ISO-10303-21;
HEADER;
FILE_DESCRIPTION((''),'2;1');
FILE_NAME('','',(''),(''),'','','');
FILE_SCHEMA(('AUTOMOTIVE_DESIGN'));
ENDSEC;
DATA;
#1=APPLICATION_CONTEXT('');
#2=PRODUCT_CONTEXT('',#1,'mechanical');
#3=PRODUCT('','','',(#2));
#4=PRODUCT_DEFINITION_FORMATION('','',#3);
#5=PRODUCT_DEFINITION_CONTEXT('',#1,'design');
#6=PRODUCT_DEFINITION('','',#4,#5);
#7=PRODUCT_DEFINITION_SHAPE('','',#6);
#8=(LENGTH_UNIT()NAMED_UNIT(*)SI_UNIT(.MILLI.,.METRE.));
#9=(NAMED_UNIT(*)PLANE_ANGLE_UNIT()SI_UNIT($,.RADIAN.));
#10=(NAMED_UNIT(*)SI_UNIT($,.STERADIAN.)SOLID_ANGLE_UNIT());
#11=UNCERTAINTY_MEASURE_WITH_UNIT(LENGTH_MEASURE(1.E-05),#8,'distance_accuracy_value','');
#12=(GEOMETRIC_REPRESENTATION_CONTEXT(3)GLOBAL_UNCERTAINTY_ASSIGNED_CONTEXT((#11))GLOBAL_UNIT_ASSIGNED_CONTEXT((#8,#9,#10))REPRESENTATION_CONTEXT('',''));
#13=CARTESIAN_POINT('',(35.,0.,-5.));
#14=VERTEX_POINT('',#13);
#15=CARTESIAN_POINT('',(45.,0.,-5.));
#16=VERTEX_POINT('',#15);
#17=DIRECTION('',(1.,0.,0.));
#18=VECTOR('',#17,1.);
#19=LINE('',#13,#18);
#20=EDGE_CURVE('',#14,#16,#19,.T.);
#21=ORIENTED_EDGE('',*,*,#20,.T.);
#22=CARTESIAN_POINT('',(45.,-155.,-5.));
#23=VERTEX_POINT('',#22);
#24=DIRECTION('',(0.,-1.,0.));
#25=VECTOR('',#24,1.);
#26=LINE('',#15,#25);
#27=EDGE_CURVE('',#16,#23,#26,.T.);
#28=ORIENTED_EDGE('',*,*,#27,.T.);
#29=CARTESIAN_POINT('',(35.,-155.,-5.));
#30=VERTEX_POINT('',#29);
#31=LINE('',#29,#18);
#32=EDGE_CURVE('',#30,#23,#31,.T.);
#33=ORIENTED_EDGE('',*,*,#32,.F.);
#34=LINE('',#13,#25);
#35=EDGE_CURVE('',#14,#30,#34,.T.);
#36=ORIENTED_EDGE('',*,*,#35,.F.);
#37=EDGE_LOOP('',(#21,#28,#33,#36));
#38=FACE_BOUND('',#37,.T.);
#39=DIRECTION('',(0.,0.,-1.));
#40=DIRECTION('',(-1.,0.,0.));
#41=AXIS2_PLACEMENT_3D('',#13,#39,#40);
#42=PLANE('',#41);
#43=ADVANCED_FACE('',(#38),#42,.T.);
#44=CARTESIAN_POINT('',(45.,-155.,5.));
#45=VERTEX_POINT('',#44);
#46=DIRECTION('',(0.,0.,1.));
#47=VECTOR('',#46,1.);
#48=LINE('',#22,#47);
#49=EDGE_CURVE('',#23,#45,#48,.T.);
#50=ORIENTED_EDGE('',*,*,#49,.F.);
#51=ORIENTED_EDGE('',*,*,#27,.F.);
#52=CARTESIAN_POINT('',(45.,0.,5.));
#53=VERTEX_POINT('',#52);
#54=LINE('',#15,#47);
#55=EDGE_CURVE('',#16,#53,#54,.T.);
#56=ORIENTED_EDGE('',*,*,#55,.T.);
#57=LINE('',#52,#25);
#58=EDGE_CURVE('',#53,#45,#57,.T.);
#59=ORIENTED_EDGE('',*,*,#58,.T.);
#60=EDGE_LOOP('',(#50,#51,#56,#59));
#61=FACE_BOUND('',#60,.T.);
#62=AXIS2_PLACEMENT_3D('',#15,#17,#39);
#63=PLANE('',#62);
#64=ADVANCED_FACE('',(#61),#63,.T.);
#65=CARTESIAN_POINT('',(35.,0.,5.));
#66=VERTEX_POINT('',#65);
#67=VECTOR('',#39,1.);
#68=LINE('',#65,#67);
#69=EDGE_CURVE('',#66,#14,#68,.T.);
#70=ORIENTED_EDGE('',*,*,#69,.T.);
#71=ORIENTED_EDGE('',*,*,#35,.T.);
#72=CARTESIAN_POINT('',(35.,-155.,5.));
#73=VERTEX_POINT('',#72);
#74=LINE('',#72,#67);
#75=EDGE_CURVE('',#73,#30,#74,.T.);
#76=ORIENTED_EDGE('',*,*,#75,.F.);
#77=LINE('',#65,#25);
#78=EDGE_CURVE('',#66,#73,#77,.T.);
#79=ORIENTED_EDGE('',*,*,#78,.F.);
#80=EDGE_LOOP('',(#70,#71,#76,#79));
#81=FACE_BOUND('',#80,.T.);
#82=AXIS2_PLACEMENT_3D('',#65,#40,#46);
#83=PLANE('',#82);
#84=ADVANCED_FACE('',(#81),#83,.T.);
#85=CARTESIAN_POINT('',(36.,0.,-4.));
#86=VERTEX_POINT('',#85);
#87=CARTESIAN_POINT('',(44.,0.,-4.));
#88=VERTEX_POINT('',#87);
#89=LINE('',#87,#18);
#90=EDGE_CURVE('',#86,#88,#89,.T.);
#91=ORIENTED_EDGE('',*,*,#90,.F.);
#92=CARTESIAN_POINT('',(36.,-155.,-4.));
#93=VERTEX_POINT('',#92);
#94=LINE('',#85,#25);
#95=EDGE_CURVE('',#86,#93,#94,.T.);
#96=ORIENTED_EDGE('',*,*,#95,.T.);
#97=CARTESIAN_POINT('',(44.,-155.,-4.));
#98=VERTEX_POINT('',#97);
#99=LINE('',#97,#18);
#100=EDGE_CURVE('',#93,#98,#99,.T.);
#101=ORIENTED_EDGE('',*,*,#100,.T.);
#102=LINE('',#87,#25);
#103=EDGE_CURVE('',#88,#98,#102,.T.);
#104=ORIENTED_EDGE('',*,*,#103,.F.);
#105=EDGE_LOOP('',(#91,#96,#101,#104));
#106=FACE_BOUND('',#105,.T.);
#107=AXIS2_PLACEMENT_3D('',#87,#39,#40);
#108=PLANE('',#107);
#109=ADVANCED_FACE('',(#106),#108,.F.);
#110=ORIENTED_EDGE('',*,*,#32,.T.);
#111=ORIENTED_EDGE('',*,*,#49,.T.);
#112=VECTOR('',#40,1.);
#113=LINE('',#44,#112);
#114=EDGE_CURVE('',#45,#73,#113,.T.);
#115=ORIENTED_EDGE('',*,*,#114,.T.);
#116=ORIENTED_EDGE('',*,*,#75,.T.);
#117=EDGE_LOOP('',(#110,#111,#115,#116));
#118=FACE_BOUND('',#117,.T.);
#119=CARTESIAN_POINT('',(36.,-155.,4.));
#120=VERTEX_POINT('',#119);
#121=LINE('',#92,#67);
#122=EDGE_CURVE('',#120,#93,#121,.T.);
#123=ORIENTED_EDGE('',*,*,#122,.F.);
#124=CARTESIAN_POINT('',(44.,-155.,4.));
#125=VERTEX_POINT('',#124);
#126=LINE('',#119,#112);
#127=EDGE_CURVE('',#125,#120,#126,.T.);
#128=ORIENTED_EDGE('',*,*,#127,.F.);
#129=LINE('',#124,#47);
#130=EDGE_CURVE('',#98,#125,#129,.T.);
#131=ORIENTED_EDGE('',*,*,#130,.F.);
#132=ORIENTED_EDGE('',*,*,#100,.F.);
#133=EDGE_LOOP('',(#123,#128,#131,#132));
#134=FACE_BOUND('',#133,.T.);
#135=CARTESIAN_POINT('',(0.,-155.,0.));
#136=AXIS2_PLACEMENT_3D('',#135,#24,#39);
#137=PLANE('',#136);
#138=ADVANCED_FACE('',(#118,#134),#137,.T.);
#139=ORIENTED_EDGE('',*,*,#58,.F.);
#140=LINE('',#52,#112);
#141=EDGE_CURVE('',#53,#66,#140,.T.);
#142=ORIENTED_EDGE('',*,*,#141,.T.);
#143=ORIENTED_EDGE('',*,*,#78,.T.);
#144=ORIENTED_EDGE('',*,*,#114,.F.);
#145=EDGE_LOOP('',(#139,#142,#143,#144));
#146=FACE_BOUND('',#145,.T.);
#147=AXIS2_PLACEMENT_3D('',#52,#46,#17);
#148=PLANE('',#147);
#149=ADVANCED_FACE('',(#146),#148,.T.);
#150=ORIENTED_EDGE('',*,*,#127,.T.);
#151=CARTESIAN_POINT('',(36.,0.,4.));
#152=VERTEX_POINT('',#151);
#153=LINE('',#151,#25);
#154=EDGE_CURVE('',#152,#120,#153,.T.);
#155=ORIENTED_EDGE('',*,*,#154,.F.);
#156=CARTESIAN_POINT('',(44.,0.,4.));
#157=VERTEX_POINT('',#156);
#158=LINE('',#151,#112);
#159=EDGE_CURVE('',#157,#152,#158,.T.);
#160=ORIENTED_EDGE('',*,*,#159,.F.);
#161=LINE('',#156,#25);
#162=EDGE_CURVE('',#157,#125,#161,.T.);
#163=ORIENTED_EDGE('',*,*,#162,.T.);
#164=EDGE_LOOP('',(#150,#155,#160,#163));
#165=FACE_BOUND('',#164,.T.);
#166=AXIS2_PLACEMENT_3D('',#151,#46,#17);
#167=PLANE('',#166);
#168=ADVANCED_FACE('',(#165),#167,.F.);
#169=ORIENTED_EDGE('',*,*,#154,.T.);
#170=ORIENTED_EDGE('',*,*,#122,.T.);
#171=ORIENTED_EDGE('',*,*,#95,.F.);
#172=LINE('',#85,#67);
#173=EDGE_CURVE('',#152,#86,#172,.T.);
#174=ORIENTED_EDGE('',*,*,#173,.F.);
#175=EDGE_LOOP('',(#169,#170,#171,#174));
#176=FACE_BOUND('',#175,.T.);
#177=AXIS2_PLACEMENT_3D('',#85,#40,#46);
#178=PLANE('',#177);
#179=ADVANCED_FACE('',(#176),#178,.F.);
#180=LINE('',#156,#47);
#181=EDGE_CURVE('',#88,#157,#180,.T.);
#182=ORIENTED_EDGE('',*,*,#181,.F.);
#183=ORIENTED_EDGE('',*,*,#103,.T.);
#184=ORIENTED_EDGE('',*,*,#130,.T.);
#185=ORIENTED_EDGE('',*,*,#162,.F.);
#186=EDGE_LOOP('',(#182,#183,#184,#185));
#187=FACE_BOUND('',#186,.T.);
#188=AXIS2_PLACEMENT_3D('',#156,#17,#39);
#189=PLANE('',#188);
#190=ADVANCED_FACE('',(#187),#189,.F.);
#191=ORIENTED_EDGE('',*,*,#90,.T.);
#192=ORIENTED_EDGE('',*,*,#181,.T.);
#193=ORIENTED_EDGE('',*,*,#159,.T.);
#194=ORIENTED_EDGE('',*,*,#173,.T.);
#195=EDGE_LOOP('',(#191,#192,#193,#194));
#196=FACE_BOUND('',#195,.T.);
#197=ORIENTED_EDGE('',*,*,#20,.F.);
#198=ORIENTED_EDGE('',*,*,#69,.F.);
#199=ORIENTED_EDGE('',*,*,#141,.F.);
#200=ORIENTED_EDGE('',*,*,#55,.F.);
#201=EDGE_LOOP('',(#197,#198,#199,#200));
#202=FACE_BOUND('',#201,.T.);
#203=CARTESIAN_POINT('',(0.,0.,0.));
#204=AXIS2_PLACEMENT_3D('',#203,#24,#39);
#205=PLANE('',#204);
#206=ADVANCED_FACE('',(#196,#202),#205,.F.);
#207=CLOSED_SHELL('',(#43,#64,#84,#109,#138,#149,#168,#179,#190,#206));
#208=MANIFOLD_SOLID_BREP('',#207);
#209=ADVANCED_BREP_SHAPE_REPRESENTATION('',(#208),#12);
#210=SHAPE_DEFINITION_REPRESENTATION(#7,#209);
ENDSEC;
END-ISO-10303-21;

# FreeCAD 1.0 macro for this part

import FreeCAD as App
import Part
import Sketcher

V = App.Vector


def add_polygon(sketch, points):
    """Adds a closed chain of lines whose ends are joined by coincident constraints."""
    first, n = sketch.GeometryCount, len(points)
    for a, b in zip(points, points[1:] + points[:1]):
        sketch.addGeometry(Part.LineSegment(App.Vector(*a, 0), App.Vector(*b, 0)), False)
    for i in range(n):
        sketch.addConstraint(Sketcher.Constraint("Coincident", first + i, 2, first + (i + 1) % n, 1))

doc = App.newDocument("Part")
params = doc.addObject("Spreadsheet::Sheet", "Params")
for row, (alias, value) in enumerate([
    ("sketch1_width", "10 mm"),
    ("sketch1_width2", "8 mm"),
    ("pad1_length", "155 mm"),
], start=1):
    params.set(f"A{row}", alias)
    params.set(f"B{row}", "=" + value)
    params.setAlias(f"B{row}", alias)

body = doc.addObject("PartDesign::Body", "Body")

# Sketch on XZ plane
sketch1 = body.newObject("Sketcher::SketchObject", "Sketch")
sketch1.AttachmentSupport = (doc.getObject("XZ_Plane"), [""])
sketch1.MapMode = "FlatFace"
sketch1.AttachmentOffset = App.Placement(V(0, 0, 155), App.Rotation())
add_polygon(sketch1, [(35, 5), (35, -5), (45, -5), (45, 5)])  # lines 0-3
add_polygon(sketch1, [(44, -4), (36, -4), (36, 4), (44, 4)])  # lines 4-7
sketch1.addConstraint([
    Sketcher.Constraint("Vertical", 0),
    Sketcher.Constraint("Horizontal", 1),
    Sketcher.Constraint("Vertical", 2),
    Sketcher.Constraint("Horizontal", 3),
    Sketcher.Constraint("Horizontal", 4),
    Sketcher.Constraint("Vertical", 5),
    Sketcher.Constraint("Horizontal", 6),
    Sketcher.Constraint("Vertical", 7),
    Sketcher.Constraint("Equal", 3, 0),
    Sketcher.Constraint("Equal", 6, 5),
    Sketcher.Constraint("DistanceX", 1, 1, 1, 2, 10.0),
    Sketcher.Constraint("DistanceX", 4, 2, 4, 1, 8.0),
    Sketcher.Constraint("DistanceX", -1, 1, 0, 2, 35.0),
    Sketcher.Constraint("DistanceY", 0, 2, -1, 1, 5.0),
    Sketcher.Constraint("DistanceX", -1, 1, 4, 2, 36.0),
    Sketcher.Constraint("DistanceY", 4, 2, -1, 1, 4.0),
])
sketch1.setExpression("Constraints[18]", "Params.sketch1_width")
sketch1.setExpression("Constraints[19]", "Params.sketch1_width2")
pad1 = body.newObject("PartDesign::Pad", "Pad")
pad1.Profile = sketch1
pad1.setExpression("Length", "Params.pad1_length")
pad1.Reversed = True

doc.recompute()
